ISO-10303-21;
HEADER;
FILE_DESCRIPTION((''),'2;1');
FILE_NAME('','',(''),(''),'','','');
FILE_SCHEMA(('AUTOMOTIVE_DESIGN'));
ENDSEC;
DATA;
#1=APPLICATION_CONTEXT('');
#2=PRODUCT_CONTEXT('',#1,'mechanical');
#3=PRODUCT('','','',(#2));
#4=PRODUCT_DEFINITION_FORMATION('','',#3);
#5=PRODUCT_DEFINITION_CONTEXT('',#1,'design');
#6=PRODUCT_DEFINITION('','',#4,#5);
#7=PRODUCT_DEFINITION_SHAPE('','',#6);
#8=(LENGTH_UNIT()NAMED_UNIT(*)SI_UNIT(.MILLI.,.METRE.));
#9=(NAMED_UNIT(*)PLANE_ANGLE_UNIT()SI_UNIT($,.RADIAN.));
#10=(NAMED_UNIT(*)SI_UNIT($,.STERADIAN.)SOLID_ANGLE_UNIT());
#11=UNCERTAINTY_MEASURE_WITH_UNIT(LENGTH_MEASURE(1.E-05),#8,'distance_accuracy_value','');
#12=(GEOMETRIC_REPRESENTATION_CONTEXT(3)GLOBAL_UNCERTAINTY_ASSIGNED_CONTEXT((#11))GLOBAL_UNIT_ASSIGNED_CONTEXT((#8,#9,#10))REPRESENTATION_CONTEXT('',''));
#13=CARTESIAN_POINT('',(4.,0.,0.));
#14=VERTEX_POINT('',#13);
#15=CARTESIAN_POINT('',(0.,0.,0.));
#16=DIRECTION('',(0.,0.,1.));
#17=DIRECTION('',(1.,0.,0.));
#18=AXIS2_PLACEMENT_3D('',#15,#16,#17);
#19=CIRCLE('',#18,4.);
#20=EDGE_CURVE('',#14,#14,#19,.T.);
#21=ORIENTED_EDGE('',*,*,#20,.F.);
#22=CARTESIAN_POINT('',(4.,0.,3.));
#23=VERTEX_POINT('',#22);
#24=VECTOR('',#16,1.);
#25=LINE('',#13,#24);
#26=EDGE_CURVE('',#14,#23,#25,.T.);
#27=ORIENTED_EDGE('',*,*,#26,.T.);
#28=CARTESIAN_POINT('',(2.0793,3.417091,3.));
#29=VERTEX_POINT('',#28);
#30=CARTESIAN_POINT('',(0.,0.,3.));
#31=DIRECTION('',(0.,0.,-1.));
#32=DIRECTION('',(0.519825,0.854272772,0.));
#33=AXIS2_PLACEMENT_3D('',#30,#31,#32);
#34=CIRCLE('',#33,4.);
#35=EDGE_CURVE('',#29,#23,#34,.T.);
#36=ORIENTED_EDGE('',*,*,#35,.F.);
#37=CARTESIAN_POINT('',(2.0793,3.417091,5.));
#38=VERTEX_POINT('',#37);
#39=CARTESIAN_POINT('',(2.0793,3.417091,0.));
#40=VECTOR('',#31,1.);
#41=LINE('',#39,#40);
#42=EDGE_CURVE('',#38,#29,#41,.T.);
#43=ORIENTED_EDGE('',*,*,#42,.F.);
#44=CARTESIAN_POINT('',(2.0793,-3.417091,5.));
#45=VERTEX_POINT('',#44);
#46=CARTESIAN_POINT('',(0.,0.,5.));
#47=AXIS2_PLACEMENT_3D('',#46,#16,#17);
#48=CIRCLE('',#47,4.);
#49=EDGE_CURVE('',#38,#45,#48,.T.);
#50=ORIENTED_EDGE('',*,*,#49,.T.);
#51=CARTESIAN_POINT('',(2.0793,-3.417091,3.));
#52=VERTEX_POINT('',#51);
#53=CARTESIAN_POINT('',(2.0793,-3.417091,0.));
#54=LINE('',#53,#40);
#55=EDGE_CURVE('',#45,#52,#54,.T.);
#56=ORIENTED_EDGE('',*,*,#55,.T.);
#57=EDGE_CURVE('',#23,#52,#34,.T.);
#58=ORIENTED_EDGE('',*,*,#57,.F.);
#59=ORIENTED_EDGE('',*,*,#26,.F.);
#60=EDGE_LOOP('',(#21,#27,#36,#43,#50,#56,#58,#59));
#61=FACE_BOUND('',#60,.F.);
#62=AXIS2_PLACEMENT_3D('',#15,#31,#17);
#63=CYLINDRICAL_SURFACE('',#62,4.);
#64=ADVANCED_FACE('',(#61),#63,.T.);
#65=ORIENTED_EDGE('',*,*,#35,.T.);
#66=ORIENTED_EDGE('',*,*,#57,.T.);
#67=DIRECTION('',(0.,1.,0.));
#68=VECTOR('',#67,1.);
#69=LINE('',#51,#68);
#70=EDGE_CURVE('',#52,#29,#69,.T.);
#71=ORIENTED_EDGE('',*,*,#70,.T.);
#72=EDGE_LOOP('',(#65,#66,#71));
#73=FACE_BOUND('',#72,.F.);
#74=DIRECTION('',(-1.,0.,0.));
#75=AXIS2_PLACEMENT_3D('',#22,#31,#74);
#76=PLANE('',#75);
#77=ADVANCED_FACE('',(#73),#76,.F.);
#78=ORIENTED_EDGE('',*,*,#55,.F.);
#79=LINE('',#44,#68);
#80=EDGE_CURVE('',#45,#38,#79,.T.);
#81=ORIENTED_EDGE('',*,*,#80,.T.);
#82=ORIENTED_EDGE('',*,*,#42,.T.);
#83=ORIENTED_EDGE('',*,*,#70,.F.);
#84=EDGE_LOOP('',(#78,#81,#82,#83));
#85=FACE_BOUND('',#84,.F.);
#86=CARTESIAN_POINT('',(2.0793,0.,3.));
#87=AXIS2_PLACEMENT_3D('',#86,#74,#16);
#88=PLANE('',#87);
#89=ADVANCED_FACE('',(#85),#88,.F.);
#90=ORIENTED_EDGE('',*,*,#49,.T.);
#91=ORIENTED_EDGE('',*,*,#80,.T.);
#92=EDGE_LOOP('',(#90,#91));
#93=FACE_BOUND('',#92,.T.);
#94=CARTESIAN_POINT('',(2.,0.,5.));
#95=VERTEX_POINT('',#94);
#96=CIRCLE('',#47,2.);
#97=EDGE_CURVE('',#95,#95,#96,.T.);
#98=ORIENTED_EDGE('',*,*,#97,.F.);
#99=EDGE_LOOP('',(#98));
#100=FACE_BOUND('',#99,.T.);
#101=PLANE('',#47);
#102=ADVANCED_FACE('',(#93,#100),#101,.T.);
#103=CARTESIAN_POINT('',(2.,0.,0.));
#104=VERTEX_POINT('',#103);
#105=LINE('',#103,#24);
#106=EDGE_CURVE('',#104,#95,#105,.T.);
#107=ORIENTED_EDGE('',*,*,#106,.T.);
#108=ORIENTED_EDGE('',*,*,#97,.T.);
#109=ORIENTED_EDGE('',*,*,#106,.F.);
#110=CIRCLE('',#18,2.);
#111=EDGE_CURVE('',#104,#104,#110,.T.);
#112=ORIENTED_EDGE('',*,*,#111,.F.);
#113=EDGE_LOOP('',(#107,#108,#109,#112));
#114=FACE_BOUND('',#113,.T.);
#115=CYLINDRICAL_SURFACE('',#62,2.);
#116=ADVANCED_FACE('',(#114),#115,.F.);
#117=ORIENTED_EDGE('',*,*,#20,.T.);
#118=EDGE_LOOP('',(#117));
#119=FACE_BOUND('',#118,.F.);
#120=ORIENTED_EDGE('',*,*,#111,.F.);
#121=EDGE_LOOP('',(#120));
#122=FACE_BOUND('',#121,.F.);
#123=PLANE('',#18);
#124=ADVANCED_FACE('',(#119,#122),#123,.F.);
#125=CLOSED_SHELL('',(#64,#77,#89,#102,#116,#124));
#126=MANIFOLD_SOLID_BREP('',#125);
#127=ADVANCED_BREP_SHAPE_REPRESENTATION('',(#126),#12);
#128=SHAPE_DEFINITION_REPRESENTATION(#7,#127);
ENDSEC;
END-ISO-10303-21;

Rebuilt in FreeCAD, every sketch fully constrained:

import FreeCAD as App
import Part
import Sketcher


def add_polygon(sketch, points):
    """Adds a closed chain of lines whose ends are joined by coincident constraints."""
    first, n = sketch.GeometryCount, len(points)
    for a, b in zip(points, points[1:] + points[:1]):
        sketch.addGeometry(Part.LineSegment(App.Vector(*a, 0), App.Vector(*b, 0)), False)
    for i in range(n):
        sketch.addConstraint(Sketcher.Constraint("Coincident", first + i, 2, first + (i + 1) % n, 1))

doc = App.newDocument("Part")
body = doc.addObject("PartDesign::Body", "Body")

# Sketch on XY plane
sketch1 = body.newObject("Sketcher::SketchObject", "Sketch")
sketch1.AttachmentSupport = (doc.getObject("XY_Plane"), [""])
sketch1.MapMode = "FlatFace"
sketch1.addGeometry([
    Part.Circle(App.Vector(0, 0, 0), App.Vector(0, 0, 1), 4),
    Part.Circle(App.Vector(0, 0, 0), App.Vector(0, 0, 1), 2),
], False)
sketch1.addConstraint([
    Sketcher.Constraint("Coincident", 0, 3, -1, 1),
    Sketcher.Constraint("Coincident", 1, 3, -1, 1),
    Sketcher.Constraint("Diameter", 0, 8.0),
    Sketcher.Constraint("Diameter", 1, 4.0),
])
pad1 = body.newObject("PartDesign::Pad", "Pad")
pad1.Profile = sketch1
pad1.Length = 5

# Sketch on XZ plane
sketch2 = body.newObject("Sketcher::SketchObject", "Sketch001")
sketch2.AttachmentSupport = (doc.getObject("XZ_Plane"), [""])
sketch2.MapMode = "FlatFace"
add_polygon(sketch2, [(2.1, 3), (4, 3), (4, 5), (2.1, 5)])  # lines 0-3
sketch2.addConstraint([
    Sketcher.Constraint("Horizontal", 0),
    Sketcher.Constraint("Vertical", 1),
    Sketcher.Constraint("Horizontal", 2),
    Sketcher.Constraint("Vertical", 3),
    Sketcher.Constraint("DistanceY", 1, 1, 1, 2, 2.0),
    Sketcher.Constraint("DistanceX", -1, 1, 0, 2, 4.0),
    Sketcher.Constraint("DistanceY", -1, 1, 0, 2, 3.0),
    Sketcher.Constraint("DistanceX", -1, 1, 2, 2, 2.0793),
])
pocket1 = body.newObject("PartDesign::Pocket", "Pocket")
pocket1.Profile = sketch2
pocket1.Type = "ThroughAll"
pocket1.Midplane = True

doc.recompute()
